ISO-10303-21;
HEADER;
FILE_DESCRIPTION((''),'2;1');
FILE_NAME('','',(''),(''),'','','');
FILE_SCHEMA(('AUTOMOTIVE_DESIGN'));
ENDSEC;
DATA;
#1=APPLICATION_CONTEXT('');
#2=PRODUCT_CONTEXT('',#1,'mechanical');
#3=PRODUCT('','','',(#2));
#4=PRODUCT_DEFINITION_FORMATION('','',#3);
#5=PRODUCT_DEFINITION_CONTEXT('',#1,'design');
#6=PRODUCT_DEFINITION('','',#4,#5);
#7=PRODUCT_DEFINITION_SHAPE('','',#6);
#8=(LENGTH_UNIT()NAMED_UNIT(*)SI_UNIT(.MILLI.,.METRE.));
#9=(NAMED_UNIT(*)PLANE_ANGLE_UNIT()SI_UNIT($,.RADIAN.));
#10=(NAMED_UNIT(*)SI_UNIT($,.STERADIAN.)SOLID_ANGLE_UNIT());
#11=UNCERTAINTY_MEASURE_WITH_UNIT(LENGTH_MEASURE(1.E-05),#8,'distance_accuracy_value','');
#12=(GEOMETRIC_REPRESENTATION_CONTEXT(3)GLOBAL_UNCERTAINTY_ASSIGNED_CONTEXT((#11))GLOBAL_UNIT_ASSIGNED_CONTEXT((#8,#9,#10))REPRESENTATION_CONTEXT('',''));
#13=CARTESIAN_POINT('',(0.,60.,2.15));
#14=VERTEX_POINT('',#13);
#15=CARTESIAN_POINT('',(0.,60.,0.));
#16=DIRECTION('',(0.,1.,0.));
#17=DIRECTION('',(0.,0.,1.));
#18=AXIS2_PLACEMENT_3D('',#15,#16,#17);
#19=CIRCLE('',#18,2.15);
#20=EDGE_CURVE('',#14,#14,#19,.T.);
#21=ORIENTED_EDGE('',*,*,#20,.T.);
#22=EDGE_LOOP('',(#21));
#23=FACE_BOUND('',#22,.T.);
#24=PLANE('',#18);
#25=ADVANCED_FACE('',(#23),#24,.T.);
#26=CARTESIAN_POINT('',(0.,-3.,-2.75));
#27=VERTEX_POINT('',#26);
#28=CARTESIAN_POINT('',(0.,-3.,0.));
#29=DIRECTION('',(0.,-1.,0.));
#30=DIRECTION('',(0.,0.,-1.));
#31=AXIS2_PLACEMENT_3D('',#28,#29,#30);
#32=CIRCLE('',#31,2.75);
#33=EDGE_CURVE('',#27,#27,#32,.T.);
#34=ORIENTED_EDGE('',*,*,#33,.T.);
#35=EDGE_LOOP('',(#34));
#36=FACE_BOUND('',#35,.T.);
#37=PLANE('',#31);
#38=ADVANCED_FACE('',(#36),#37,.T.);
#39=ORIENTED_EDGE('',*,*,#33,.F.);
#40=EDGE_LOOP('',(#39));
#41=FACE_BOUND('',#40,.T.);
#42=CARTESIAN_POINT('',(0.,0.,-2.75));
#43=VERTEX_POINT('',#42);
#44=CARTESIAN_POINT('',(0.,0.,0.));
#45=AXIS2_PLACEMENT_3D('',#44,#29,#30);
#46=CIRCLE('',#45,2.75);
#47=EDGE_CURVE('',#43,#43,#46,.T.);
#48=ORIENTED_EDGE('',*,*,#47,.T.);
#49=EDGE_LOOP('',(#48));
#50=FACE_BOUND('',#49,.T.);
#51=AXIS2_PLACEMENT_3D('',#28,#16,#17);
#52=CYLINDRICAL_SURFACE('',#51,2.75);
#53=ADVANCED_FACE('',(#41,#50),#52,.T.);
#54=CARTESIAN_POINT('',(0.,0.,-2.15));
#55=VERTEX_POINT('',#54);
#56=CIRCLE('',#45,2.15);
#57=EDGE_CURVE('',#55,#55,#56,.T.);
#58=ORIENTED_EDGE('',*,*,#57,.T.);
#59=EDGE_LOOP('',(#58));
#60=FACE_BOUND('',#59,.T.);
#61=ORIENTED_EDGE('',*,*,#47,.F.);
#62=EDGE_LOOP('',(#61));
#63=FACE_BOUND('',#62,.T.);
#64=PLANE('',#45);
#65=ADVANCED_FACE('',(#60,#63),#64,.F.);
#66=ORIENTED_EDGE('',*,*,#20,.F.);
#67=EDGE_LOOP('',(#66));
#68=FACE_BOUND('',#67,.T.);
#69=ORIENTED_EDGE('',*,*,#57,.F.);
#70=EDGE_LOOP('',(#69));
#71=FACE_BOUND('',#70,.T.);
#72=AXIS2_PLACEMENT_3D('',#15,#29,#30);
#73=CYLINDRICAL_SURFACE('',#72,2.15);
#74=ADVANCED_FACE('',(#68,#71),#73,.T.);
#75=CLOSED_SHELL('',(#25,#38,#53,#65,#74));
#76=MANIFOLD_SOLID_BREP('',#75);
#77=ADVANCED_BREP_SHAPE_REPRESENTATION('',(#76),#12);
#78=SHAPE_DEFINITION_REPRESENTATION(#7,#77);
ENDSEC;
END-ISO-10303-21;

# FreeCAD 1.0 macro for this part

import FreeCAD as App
import Part
import Sketcher
from FreeCAD import Vector

doc = App.newDocument("Part")
body = doc.addObject("PartDesign::Body", "Body")

# Sketch on XZ plane
sketch1 = body.newObject("Sketcher::SketchObject", "Sketch")
sketch1.AttachmentSupport = (doc.getObject("XZ_Plane"), [""])
sketch1.MapMode = "FlatFace"
sketch1.addGeometry(Part.Circle(Vector(0, 0, 0), Vector(0, 0, 1), 2.1), False)
sketch1.addConstraint(Sketcher.Constraint("Coincident", 0, 3, -1, 1))
sketch1.addConstraint(Sketcher.Constraint("Diameter", 0, 4.3))
pad1 = body.newObject("PartDesign::Pad", "Pad")
pad1.Profile = sketch1
pad1.Length = 60
pad1.Reversed = True

# Sketch on XZ plane
sketch2 = body.newObject("Sketcher::SketchObject", "Sketch001")
sketch2.AttachmentSupport = (doc.getObject("XZ_Plane"), [""])
sketch2.MapMode = "FlatFace"
sketch2.addGeometry(Part.Circle(Vector(0, 0, 0), Vector(0, 0, 1), 2.8), False)
sketch2.addConstraint(Sketcher.Constraint("Coincident", 0, 3, -1, 1))
sketch2.addConstraint(Sketcher.Constraint("Diameter", 0, 5.5))
pad2 = body.newObject("PartDesign::Pad", "Pad001")
pad2.Profile = sketch2
pad2.Length = 3

doc.recompute()
